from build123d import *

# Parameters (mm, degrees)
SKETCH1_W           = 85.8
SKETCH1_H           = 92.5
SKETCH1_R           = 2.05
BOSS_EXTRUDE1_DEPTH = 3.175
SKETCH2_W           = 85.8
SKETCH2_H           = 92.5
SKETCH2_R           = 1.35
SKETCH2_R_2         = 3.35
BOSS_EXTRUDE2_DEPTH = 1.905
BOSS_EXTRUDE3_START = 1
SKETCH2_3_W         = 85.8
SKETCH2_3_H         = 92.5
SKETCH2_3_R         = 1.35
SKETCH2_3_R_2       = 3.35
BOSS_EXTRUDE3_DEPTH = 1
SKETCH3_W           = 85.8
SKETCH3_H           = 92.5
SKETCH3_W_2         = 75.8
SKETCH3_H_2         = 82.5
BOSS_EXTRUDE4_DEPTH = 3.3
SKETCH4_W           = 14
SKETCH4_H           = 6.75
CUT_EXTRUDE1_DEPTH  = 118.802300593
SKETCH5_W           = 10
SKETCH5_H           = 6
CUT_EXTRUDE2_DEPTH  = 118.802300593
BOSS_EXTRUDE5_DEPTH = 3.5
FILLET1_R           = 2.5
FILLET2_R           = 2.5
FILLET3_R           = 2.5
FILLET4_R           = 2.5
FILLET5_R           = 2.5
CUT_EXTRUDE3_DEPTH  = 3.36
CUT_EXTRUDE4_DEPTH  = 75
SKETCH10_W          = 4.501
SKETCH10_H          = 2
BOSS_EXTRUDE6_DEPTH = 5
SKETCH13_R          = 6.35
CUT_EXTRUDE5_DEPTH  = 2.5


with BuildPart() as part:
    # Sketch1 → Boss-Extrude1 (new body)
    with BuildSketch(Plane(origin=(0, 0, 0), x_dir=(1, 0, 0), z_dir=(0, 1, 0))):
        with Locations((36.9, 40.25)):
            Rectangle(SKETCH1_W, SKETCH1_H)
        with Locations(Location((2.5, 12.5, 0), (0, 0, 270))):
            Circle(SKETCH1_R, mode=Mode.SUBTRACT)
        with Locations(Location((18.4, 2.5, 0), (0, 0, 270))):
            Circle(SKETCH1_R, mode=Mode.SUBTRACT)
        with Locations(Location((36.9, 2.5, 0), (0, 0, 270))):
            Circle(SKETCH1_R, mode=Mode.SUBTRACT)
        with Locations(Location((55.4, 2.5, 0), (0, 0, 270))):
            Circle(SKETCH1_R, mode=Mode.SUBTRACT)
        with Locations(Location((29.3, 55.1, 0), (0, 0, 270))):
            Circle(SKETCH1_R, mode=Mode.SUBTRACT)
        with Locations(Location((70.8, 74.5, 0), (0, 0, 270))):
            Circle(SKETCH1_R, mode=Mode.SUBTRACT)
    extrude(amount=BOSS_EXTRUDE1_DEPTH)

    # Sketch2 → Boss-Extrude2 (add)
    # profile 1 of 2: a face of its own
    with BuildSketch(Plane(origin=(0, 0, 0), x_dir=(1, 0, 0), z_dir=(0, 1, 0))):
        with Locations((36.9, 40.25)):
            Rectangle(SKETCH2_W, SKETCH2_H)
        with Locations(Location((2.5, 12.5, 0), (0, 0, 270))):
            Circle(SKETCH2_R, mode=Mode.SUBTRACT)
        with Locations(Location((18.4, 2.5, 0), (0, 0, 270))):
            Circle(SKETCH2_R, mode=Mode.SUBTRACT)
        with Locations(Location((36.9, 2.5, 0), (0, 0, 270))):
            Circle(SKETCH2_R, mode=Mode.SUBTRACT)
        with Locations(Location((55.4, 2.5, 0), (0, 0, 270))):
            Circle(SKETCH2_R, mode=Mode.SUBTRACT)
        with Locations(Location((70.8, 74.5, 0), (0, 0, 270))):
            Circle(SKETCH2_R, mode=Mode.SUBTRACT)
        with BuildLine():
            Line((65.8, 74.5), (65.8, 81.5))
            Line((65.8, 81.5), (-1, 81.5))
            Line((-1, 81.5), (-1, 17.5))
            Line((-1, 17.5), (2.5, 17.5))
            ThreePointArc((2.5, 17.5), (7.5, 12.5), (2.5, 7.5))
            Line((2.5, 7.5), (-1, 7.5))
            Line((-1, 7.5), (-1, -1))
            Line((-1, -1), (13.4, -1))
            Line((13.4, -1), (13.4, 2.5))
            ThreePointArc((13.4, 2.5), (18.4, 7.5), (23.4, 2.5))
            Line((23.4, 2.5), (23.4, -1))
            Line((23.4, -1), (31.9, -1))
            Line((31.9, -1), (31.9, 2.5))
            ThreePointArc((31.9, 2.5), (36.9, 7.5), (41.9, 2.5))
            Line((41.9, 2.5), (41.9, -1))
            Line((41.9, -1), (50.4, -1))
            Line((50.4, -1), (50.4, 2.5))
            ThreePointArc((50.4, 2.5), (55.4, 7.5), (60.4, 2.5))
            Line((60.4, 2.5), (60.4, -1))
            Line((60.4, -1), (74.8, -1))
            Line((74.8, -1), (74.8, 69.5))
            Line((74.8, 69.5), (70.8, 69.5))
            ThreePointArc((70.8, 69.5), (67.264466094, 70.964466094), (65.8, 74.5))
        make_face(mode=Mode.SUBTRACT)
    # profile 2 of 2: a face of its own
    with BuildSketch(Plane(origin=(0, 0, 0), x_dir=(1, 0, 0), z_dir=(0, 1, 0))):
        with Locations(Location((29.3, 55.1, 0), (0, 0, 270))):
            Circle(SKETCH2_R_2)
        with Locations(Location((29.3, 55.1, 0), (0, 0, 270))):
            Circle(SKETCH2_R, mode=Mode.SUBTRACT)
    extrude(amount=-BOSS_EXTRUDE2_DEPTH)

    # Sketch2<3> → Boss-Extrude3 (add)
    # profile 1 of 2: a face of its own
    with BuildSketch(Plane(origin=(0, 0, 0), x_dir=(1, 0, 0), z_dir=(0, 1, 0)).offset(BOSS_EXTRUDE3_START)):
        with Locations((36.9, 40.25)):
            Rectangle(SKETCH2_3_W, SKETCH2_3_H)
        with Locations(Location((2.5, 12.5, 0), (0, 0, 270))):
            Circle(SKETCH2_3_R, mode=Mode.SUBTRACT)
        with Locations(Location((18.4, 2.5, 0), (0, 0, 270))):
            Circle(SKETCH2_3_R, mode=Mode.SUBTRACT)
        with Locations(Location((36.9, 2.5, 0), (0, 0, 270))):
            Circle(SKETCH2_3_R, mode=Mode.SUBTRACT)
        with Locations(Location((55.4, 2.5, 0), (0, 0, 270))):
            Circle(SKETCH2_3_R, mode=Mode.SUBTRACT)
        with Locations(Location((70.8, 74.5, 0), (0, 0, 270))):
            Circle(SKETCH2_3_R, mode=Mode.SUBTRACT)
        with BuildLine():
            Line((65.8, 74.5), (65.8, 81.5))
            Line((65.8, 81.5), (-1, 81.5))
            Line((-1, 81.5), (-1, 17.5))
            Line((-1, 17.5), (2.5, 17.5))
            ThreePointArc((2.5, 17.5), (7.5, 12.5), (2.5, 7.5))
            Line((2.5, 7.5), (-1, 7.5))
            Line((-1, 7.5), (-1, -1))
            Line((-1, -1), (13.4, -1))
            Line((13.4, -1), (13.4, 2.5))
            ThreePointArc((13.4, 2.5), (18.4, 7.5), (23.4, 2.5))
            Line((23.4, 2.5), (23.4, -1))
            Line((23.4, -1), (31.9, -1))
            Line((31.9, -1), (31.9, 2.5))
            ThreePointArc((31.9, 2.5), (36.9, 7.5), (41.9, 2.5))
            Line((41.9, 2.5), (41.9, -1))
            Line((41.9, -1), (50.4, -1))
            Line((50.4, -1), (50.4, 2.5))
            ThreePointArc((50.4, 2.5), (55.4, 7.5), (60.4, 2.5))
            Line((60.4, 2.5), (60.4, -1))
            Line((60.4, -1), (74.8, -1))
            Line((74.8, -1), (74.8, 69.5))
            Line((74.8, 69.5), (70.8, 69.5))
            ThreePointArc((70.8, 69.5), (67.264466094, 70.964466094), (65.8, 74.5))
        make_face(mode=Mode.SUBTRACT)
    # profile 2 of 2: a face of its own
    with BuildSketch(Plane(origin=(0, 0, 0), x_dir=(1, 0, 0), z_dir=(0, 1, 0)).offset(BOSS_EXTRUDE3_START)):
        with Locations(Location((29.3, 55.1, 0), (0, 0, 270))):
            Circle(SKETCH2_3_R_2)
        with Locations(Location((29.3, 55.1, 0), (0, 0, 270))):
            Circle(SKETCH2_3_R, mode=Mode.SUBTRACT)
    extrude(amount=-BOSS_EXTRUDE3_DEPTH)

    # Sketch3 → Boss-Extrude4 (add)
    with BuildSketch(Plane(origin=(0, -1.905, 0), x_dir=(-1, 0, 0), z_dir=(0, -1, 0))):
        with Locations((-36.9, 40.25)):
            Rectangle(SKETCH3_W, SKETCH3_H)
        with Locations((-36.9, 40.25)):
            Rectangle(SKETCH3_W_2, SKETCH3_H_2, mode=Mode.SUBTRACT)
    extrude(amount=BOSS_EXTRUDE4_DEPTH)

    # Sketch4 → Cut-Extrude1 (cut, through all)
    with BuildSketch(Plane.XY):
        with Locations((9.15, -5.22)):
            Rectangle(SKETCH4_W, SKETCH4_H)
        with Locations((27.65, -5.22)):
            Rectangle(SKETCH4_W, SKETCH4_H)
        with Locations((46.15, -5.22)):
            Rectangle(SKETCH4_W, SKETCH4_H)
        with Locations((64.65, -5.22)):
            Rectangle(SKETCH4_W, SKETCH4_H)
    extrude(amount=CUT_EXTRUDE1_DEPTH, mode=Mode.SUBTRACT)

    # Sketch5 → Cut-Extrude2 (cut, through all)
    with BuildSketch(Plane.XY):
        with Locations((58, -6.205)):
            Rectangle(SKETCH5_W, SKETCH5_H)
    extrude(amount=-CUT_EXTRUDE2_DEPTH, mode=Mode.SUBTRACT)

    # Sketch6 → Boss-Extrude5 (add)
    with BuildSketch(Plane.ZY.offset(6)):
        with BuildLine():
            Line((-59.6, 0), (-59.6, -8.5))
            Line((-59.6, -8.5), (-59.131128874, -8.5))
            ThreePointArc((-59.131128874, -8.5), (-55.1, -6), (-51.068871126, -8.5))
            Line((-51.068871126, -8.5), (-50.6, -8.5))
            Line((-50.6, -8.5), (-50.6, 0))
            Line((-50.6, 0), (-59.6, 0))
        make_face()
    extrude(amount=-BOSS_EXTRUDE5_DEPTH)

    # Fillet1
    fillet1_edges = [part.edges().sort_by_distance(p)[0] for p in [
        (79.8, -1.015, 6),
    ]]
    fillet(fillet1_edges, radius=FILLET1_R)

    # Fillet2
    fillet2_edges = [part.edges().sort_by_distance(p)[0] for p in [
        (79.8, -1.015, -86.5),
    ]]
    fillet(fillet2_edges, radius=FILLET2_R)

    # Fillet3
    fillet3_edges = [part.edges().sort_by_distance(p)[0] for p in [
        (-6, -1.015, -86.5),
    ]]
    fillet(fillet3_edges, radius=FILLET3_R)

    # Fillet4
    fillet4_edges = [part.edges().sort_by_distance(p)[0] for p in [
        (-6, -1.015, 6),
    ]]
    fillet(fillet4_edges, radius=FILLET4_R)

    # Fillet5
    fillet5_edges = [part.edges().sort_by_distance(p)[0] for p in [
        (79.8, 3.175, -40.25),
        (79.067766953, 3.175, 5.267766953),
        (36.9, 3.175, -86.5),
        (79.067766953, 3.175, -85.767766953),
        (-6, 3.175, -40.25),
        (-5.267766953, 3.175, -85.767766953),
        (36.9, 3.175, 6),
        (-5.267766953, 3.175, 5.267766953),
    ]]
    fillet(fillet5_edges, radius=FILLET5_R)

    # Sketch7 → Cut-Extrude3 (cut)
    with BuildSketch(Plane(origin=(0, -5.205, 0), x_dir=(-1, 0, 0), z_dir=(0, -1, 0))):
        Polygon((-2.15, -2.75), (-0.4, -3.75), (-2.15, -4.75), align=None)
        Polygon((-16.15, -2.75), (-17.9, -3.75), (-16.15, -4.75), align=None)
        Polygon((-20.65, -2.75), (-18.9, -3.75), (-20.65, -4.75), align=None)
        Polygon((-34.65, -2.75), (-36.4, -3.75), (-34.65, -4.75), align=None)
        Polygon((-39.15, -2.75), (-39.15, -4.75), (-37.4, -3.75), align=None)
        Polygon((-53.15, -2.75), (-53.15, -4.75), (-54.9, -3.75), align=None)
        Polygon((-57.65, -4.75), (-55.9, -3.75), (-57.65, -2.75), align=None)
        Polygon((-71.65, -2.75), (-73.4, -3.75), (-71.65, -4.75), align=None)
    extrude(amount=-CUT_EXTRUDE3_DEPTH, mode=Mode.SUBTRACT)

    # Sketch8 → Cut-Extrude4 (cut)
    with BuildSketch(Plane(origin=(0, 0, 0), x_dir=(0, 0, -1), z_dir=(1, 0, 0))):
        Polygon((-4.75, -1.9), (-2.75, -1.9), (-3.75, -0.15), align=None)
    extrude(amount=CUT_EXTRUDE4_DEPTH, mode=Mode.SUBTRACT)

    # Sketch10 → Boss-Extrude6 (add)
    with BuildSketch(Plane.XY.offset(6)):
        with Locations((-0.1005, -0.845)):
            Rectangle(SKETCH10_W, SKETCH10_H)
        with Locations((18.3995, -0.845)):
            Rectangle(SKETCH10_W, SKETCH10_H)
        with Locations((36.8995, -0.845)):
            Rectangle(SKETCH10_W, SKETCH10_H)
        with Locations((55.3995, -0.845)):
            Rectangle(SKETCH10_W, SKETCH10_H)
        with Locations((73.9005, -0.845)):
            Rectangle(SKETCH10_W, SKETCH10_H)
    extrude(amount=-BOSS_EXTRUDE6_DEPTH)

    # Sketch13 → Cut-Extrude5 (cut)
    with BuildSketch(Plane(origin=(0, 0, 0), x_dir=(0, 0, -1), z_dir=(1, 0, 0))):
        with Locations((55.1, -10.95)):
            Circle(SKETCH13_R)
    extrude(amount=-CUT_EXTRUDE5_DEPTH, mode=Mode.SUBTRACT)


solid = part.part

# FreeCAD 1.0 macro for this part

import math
import FreeCAD as App
import Part
import Sketcher
from FreeCAD import Vector


def edges_at(feature, points):
    """Names of the edges that pass closest to the given points."""
    edges = feature.Shape.Edges
    near = lambda p: min(range(len(edges)), key=lambda i: edges[i].distToShape(Part.Vertex(*p))[0])
    return sorted({f"Edge{near(p) + 1}" for p in points})

doc = App.newDocument("Part")
body = doc.addObject("PartDesign::Body", "Body")

sketch1 = body.newObject("Sketcher::SketchObject", "Sketch")
sketch1.AttachmentSupport = (doc.getObject("XZ_Plane"), [""])
sketch1.MapMode = "FlatFace"
sketch1.addGeometry([
    Part.LineSegment(Vector(-6, -86.5, 0), Vector(-6, 6, 0)),
    Part.LineSegment(Vector(-6, 6, 0), Vector(79.8, 6, 0)),
    Part.LineSegment(Vector(79.8, 6, 0), Vector(79.8, -86.5, 0)),
    Part.LineSegment(Vector(79.8, -86.5, 0), Vector(-6, -86.5, 0)),
    Part.Circle(Vector(18.4, -2.5, 0), Vector(0, 0, 1), 2),
    Part.Circle(Vector(2.5, -12.5, 0), Vector(0, 0, 1), 2),
    Part.Circle(Vector(36.9, -2.5, 0), Vector(0, 0, 1), 2),
    Part.Circle(Vector(55.4, -2.5, 0), Vector(0, 0, 1), 2),
    Part.Circle(Vector(29.3, -55.1, 0), Vector(0, 0, 1), 2),
    Part.Circle(Vector(70.8, -74.5, 0), Vector(0, 0, 1), 2),
], False)
sketch1.addConstraint([
    Sketcher.Constraint("Coincident", 0, 2, 1, 1),
    Sketcher.Constraint("Coincident", 1, 2, 2, 1),
    Sketcher.Constraint("Coincident", 2, 2, 3, 1),
    Sketcher.Constraint("Coincident", 3, 2, 0, 1),
    Sketcher.Constraint("Vertical", 0),
    Sketcher.Constraint("Horizontal", 1),
    Sketcher.Constraint("Vertical", 2),
    Sketcher.Constraint("Horizontal", 3),
    Sketcher.Constraint("Equal", 4, 5),
    Sketcher.Constraint("Equal", 5, 6),
    Sketcher.Constraint("Equal", 6, 7),
    Sketcher.Constraint("Equal", 7, 8),
    Sketcher.Constraint("Equal", 8, 9),
    Sketcher.Constraint("Horizontal", 4, 3, 6, 3),
    Sketcher.Constraint("Horizontal", 6, 3, 7, 3),
    Sketcher.Constraint("Diameter", 4, 4.1),
    Sketcher.Constraint("DistanceX", 1, 1, 1, 2, 85.8),
    Sketcher.Constraint("DistanceY", 0, 1, 0, 2, 92.5),
    Sketcher.Constraint("DistanceX", 0, 2, -1, 1, 6.0),
    Sketcher.Constraint("DistanceY", -1, 1, 0, 2, 6.0),
    Sketcher.Constraint("DistanceY", 5, 3, 4, 3, 10.0),
    Sketcher.Constraint("DistanceX", 4, 3, 7, 3, 37.0),
    Sketcher.Constraint("DistanceY", 9, 3, 7, 3, 72.0),
    Sketcher.Constraint("DistanceX", 9, 3, 2, 2, 9.0),
    Sketcher.Constraint("DistanceY", 2, 2, 9, 3, 12.0),
    Sketcher.Constraint("DistanceX", -1, 1, 4, 3, 18.4),
    Sketcher.Constraint("DistanceX", -1, 1, 5, 3, 2.5),
    Sketcher.Constraint("DistanceX", -1, 1, 6, 3, 36.9),
    Sketcher.Constraint("DistanceX", -1, 1, 8, 3, 29.3),
    Sketcher.Constraint("DistanceY", 8, 3, -1, 1, 55.1),
])
pad1 = body.newObject("PartDesign::Pad", "Pad")
pad1.Profile = sketch1
pad1.Length = 3.175
pad1.Reversed = True

sketch2 = body.newObject("Sketcher::SketchObject", "Sketch001")
sketch2.AttachmentSupport = (doc.getObject("XZ_Plane"), [""])
sketch2.MapMode = "FlatFace"
sketch2.addGeometry([
    Part.LineSegment(Vector(-6, -86.5, 0), Vector(-6, 6, 0)),
    Part.LineSegment(Vector(-6, 6, 0), Vector(79.8, 6, 0)),
    Part.LineSegment(Vector(79.8, 6, 0), Vector(79.8, -86.5, 0)),
    Part.LineSegment(Vector(79.8, -86.5, 0), Vector(-6, -86.5, 0)),
    Part.Circle(Vector(2.5, -12.5, 0), Vector(0, 0, 1), 1.4),
    Part.Circle(Vector(18.4, -2.5, 0), Vector(0, 0, 1), 1.4),
    Part.Circle(Vector(36.9, -2.5, 0), Vector(0, 0, 1), 1.4),
    Part.Circle(Vector(55.4, -2.5, 0), Vector(0, 0, 1), 1.4),
    Part.LineSegment(Vector(65.8, -81.5, 0), Vector(65.8, -74.5, 0)),
    Part.ArcOfCircle(Part.Circle(Vector(70.8, -74.5, 0), Vector(0, 0, 1), 5), math.radians(90), math.radians(180)),
    Part.LineSegment(Vector(70.8, -69.5, 0), Vector(74.8, -69.5, 0)),
    Part.LineSegment(Vector(74.8, -69.5, 0), Vector(74.8, 1, 0)),
    Part.LineSegment(Vector(74.8, 1, 0), Vector(60.4, 1, 0)),
    Part.LineSegment(Vector(60.4, 1, 0), Vector(60.4, -2.5, 0)),
    Part.ArcOfCircle(Part.Circle(Vector(55.4, -2.5, 0), Vector(0, 0, 1), 5), math.radians(180), math.radians(360)),
    Part.LineSegment(Vector(50.4, -2.5, 0), Vector(50.4, 1, 0)),
    Part.LineSegment(Vector(50.4, 1, 0), Vector(41.9, 1, 0)),
    Part.LineSegment(Vector(41.9, 1, 0), Vector(41.9, -2.5, 0)),
    Part.ArcOfCircle(Part.Circle(Vector(36.9, -2.5, 0), Vector(0, 0, 1), 5), math.radians(180), math.radians(360)),
    Part.LineSegment(Vector(31.9, -2.5, 0), Vector(31.9, 1, 0)),
    Part.LineSegment(Vector(31.9, 1, 0), Vector(23.4, 1, 0)),
    Part.LineSegment(Vector(23.4, 1, 0), Vector(23.4, -2.5, 0)),
    Part.ArcOfCircle(Part.Circle(Vector(18.4, -2.5, 0), Vector(0, 0, 1), 5), math.radians(180), math.radians(360)),
    Part.LineSegment(Vector(13.4, -2.5, 0), Vector(13.4, 1, 0)),
    Part.LineSegment(Vector(13.4, 1, 0), Vector(-1, 1, 0)),
    Part.LineSegment(Vector(-1, 1, 0), Vector(-1, -7.5, 0)),
    Part.LineSegment(Vector(-1, -7.5, 0), Vector(2.5, -7.5, 0)),
    Part.ArcOfCircle(Part.Circle(Vector(2.5, -12.5, 0), Vector(0, 0, 1), 5), math.radians(-90), math.radians(90)),
    Part.LineSegment(Vector(2.5, -17.5, 0), Vector(-1, -17.5, 0)),
    Part.LineSegment(Vector(-1, -17.5, 0), Vector(-1, -81.5, 0)),
    Part.LineSegment(Vector(-1, -81.5, 0), Vector(65.8, -81.5, 0)),
    Part.Circle(Vector(70.8, -74.5, 0), Vector(0, 0, 1), 1.4),
    Part.Circle(Vector(29.3, -55.1, 0), Vector(0, 0, 1), 3.4),
    Part.Circle(Vector(29.3, -55.1, 0), Vector(0, 0, 1), 1.4),
], False)
sketch2.addConstraint([
    Sketcher.Constraint("Coincident", 0, 2, 1, 1),
    Sketcher.Constraint("Coincident", 1, 2, 2, 1),
    Sketcher.Constraint("Coincident", 2, 2, 3, 1),
    Sketcher.Constraint("Coincident", 3, 2, 0, 1),
    Sketcher.Constraint("Tangent", 8, 2, 9, 2),
    Sketcher.Constraint("Tangent", 9, 1, 10, 1),
    Sketcher.Constraint("Coincident", 10, 2, 11, 1),
    Sketcher.Constraint("Coincident", 11, 2, 12, 1),
    Sketcher.Constraint("Coincident", 12, 2, 13, 1),
    Sketcher.Constraint("Tangent", 13, 2, 14, 2),
    Sketcher.Constraint("Tangent", 14, 1, 15, 1),
    Sketcher.Constraint("Coincident", 15, 2, 16, 1),
    Sketcher.Constraint("Coincident", 16, 2, 17, 1),
    Sketcher.Constraint("Tangent", 17, 2, 18, 2),
    Sketcher.Constraint("Tangent", 18, 1, 19, 1),
    Sketcher.Constraint("Coincident", 19, 2, 20, 1),
    Sketcher.Constraint("Coincident", 20, 2, 21, 1),
    Sketcher.Constraint("Tangent", 21, 2, 22, 2),
    Sketcher.Constraint("Tangent", 22, 1, 23, 1),
    Sketcher.Constraint("Coincident", 23, 2, 24, 1),
    Sketcher.Constraint("Coincident", 24, 2, 25, 1),
    Sketcher.Constraint("Coincident", 25, 2, 26, 1),
    Sketcher.Constraint("Tangent", 26, 2, 27, 2),
    Sketcher.Constraint("Tangent", 27, 1, 28, 1),
    Sketcher.Constraint("Coincident", 28, 2, 29, 1),
    Sketcher.Constraint("Coincident", 29, 2, 30, 1),
    Sketcher.Constraint("Coincident", 30, 2, 8, 1),
    Sketcher.Constraint("Vertical", 0),
    Sketcher.Constraint("Horizontal", 1),
    Sketcher.Constraint("Vertical", 2),
    Sketcher.Constraint("Horizontal", 3),
    Sketcher.Constraint("Vertical", 8),
    Sketcher.Constraint("Horizontal", 10),
    Sketcher.Constraint("Vertical", 11),
    Sketcher.Constraint("Horizontal", 12),
    Sketcher.Constraint("Vertical", 13),
    Sketcher.Constraint("Vertical", 15),
    Sketcher.Constraint("Horizontal", 16),
    Sketcher.Constraint("Vertical", 17),
    Sketcher.Constraint("Vertical", 19),
    Sketcher.Constraint("Horizontal", 20),
    Sketcher.Constraint("Vertical", 21),
    Sketcher.Constraint("Vertical", 23),
    Sketcher.Constraint("Horizontal", 24),
    Sketcher.Constraint("Vertical", 25),
    Sketcher.Constraint("Horizontal", 26),
    Sketcher.Constraint("Horizontal", 28),
    Sketcher.Constraint("Vertical", 29),
    Sketcher.Constraint("Horizontal", 30),
    Sketcher.Constraint("Coincident", 14, 3, 7, 3),
    Sketcher.Constraint("Coincident", 18, 3, 6, 3),
    Sketcher.Constraint("Coincident", 22, 3, 5, 3),
    Sketcher.Constraint("Coincident", 27, 3, 4, 3),
    Sketcher.Constraint("Coincident", 31, 3, 9, 3),
    Sketcher.Constraint("Coincident", 33, 3, 32, 3),
    Sketcher.Constraint("Equal", 4, 5),
    Sketcher.Constraint("Equal", 5, 6),
    Sketcher.Constraint("Equal", 6, 7),
    Sketcher.Constraint("Equal", 9, 14),
    Sketcher.Constraint("Equal", 14, 18),
    Sketcher.Constraint("Equal", 18, 22),
    Sketcher.Constraint("Equal", 22, 27),
    Sketcher.Constraint("Equal", 7, 31),
    Sketcher.Constraint("Equal", 31, 33),
    Sketcher.Constraint("Horizontal", 5, 3, 6, 3),
    Sketcher.Constraint("Horizontal", 6, 3, 7, 3),
    Sketcher.Constraint("Horizontal", 12, 2, 15, 2),
    Sketcher.Constraint("Horizontal", 16, 2, 19, 2),
    Sketcher.Constraint("Horizontal", 20, 2, 23, 2),
    Sketcher.Constraint("Vertical", 25, 2, 28, 2),
    Sketcher.Constraint("Equal", 16, 20),
    Sketcher.Constraint("Equal", 12, 24),
    Sketcher.Constraint("Equal", 28, 13),
    Sketcher.Constraint("Equal", 20, 25),
    Sketcher.Constraint("Radius", 9, 5.0),
    Sketcher.Constraint("Diameter", 4, 2.7),
    Sketcher.Constraint("Diameter", 32, 6.7),
    Sketcher.Constraint("DistanceX", 10, 1, 10, 2, 4.0),
    Sketcher.Constraint("DistanceY", 8, 1, 8, 2, 7.0),
    Sketcher.Constraint("DistanceY", 29, 2, 29, 1, 64.0),
    Sketcher.Constraint("DistanceX", 1, 1, 1, 2, 85.8),
    Sketcher.Constraint("DistanceX", 12, 2, 12, 1, 14.4),
    Sketcher.Constraint("DistanceX", 16, 2, 16, 1, 8.5),
    Sketcher.Constraint("DistanceX", 26, 1, 26, 2, 3.5),
    Sketcher.Constraint("DistanceY", 0, 1, 0, 2, 92.5),
    Sketcher.Constraint("DistanceX", 0, 2, -1, 1, 6.0),
    Sketcher.Constraint("DistanceY", -1, 1, 0, 2, 6.0),
    Sketcher.Constraint("DistanceY", -1, 1, 11, 2, 1.0),
    Sketcher.Constraint("DistanceX", 24, 2, -1, 1, 1.0),
    Sketcher.Constraint("DistanceX", -1, 1, 32, 3, 29.3),
    Sketcher.Constraint("DistanceY", 32, 3, -1, 1, 55.1),
])
pad2 = body.newObject("PartDesign::Pad", "Pad001")
pad2.Profile = sketch2
pad2.Length = 1.905

sketch3 = body.newObject("Sketcher::SketchObject", "Sketch002")
sketch3.AttachmentSupport = (doc.getObject("XZ_Plane"), [""])
sketch3.MapMode = "FlatFace"
sketch3.AttachmentOffset = App.Placement(Vector(0, 0, -1), App.Rotation())
sketch3.addGeometry([
    Part.LineSegment(Vector(-6, -86.5, 0), Vector(-6, 6, 0)),
    Part.LineSegment(Vector(-6, 6, 0), Vector(79.8, 6, 0)),
    Part.LineSegment(Vector(79.8, 6, 0), Vector(79.8, -86.5, 0)),
    Part.LineSegment(Vector(79.8, -86.5, 0), Vector(-6, -86.5, 0)),
    Part.Circle(Vector(2.5, -12.5, 0), Vector(0, 0, 1), 1.4),
    Part.Circle(Vector(18.4, -2.5, 0), Vector(0, 0, 1), 1.4),
    Part.Circle(Vector(36.9, -2.5, 0), Vector(0, 0, 1), 1.4),
    Part.Circle(Vector(55.4, -2.5, 0), Vector(0, 0, 1), 1.4),
    Part.LineSegment(Vector(65.8, -81.5, 0), Vector(65.8, -74.5, 0)),
    Part.ArcOfCircle(Part.Circle(Vector(70.8, -74.5, 0), Vector(0, 0, 1), 5), math.radians(90), math.radians(180)),
    Part.LineSegment(Vector(70.8, -69.5, 0), Vector(74.8, -69.5, 0)),
    Part.LineSegment(Vector(74.8, -69.5, 0), Vector(74.8, 1, 0)),
    Part.LineSegment(Vector(74.8, 1, 0), Vector(60.4, 1, 0)),
    Part.LineSegment(Vector(60.4, 1, 0), Vector(60.4, -2.5, 0)),
    Part.ArcOfCircle(Part.Circle(Vector(55.4, -2.5, 0), Vector(0, 0, 1), 5), math.radians(180), math.radians(360)),
    Part.LineSegment(Vector(50.4, -2.5, 0), Vector(50.4, 1, 0)),
    Part.LineSegment(Vector(50.4, 1, 0), Vector(41.9, 1, 0)),
    Part.LineSegment(Vector(41.9, 1, 0), Vector(41.9, -2.5, 0)),
    Part.ArcOfCircle(Part.Circle(Vector(36.9, -2.5, 0), Vector(0, 0, 1), 5), math.radians(180), math.radians(360)),
    Part.LineSegment(Vector(31.9, -2.5, 0), Vector(31.9, 1, 0)),
    Part.LineSegment(Vector(31.9, 1, 0), Vector(23.4, 1, 0)),
    Part.LineSegment(Vector(23.4, 1, 0), Vector(23.4, -2.5, 0)),
    Part.ArcOfCircle(Part.Circle(Vector(18.4, -2.5, 0), Vector(0, 0, 1), 5), math.radians(180), math.radians(360)),
    Part.LineSegment(Vector(13.4, -2.5, 0), Vector(13.4, 1, 0)),
    Part.LineSegment(Vector(13.4, 1, 0), Vector(-1, 1, 0)),
    Part.LineSegment(Vector(-1, 1, 0), Vector(-1, -7.5, 0)),
    Part.LineSegment(Vector(-1, -7.5, 0), Vector(2.5, -7.5, 0)),
    Part.ArcOfCircle(Part.Circle(Vector(2.5, -12.5, 0), Vector(0, 0, 1), 5), math.radians(-90), math.radians(90)),
    Part.LineSegment(Vector(2.5, -17.5, 0), Vector(-1, -17.5, 0)),
    Part.LineSegment(Vector(-1, -17.5, 0), Vector(-1, -81.5, 0)),
    Part.LineSegment(Vector(-1, -81.5, 0), Vector(65.8, -81.5, 0)),
    Part.Circle(Vector(70.8, -74.5, 0), Vector(0, 0, 1), 1.4),
    Part.Circle(Vector(29.3, -55.1, 0), Vector(0, 0, 1), 3.4),
    Part.Circle(Vector(29.3, -55.1, 0), Vector(0, 0, 1), 1.4),
], False)
sketch3.addConstraint([
    Sketcher.Constraint("Coincident", 0, 2, 1, 1),
    Sketcher.Constraint("Coincident", 1, 2, 2, 1),
    Sketcher.Constraint("Coincident", 2, 2, 3, 1),
    Sketcher.Constraint("Coincident", 3, 2, 0, 1),
    Sketcher.Constraint("Tangent", 8, 2, 9, 2),
    Sketcher.Constraint("Tangent", 9, 1, 10, 1),
    Sketcher.Constraint("Coincident", 10, 2, 11, 1),
    Sketcher.Constraint("Coincident", 11, 2, 12, 1),
    Sketcher.Constraint("Coincident", 12, 2, 13, 1),
    Sketcher.Constraint("Tangent", 13, 2, 14, 2),
    Sketcher.Constraint("Tangent", 14, 1, 15, 1),
    Sketcher.Constraint("Coincident", 15, 2, 16, 1),
    Sketcher.Constraint("Coincident", 16, 2, 17, 1),
    Sketcher.Constraint("Tangent", 17, 2, 18, 2),
    Sketcher.Constraint("Tangent", 18, 1, 19, 1),
    Sketcher.Constraint("Coincident", 19, 2, 20, 1),
    Sketcher.Constraint("Coincident", 20, 2, 21, 1),
    Sketcher.Constraint("Tangent", 21, 2, 22, 2),
    Sketcher.Constraint("Tangent", 22, 1, 23, 1),
    Sketcher.Constraint("Coincident", 23, 2, 24, 1),
    Sketcher.Constraint("Coincident", 24, 2, 25, 1),
    Sketcher.Constraint("Coincident", 25, 2, 26, 1),
    Sketcher.Constraint("Tangent", 26, 2, 27, 2),
    Sketcher.Constraint("Tangent", 27, 1, 28, 1),
    Sketcher.Constraint("Coincident", 28, 2, 29, 1),
    Sketcher.Constraint("Coincident", 29, 2, 30, 1),
    Sketcher.Constraint("Coincident", 30, 2, 8, 1),
    Sketcher.Constraint("Vertical", 0),
    Sketcher.Constraint("Horizontal", 1),
    Sketcher.Constraint("Vertical", 2),
    Sketcher.Constraint("Horizontal", 3),
    Sketcher.Constraint("Vertical", 8),
    Sketcher.Constraint("Horizontal", 10),
    Sketcher.Constraint("Vertical", 11),
    Sketcher.Constraint("Horizontal", 12),
    Sketcher.Constraint("Vertical", 13),
    Sketcher.Constraint("Vertical", 15),
    Sketcher.Constraint("Horizontal", 16),
    Sketcher.Constraint("Vertical", 17),
    Sketcher.Constraint("Vertical", 19),
    Sketcher.Constraint("Horizontal", 20),
    Sketcher.Constraint("Vertical", 21),
    Sketcher.Constraint("Vertical", 23),
    Sketcher.Constraint("Horizontal", 24),
    Sketcher.Constraint("Vertical", 25),
    Sketcher.Constraint("Horizontal", 26),
    Sketcher.Constraint("Horizontal", 28),
    Sketcher.Constraint("Vertical", 29),
    Sketcher.Constraint("Horizontal", 30),
    Sketcher.Constraint("Coincident", 14, 3, 7, 3),
    Sketcher.Constraint("Coincident", 18, 3, 6, 3),
    Sketcher.Constraint("Coincident", 22, 3, 5, 3),
    Sketcher.Constraint("Coincident", 27, 3, 4, 3),
    Sketcher.Constraint("Coincident", 31, 3, 9, 3),
    Sketcher.Constraint("Coincident", 33, 3, 32, 3),
    Sketcher.Constraint("Equal", 4, 5),
    Sketcher.Constraint("Equal", 5, 6),
    Sketcher.Constraint("Equal", 6, 7),
    Sketcher.Constraint("Equal", 9, 14),
    Sketcher.Constraint("Equal", 14, 18),
    Sketcher.Constraint("Equal", 18, 22),
    Sketcher.Constraint("Equal", 22, 27),
    Sketcher.Constraint("Equal", 7, 31),
    Sketcher.Constraint("Equal", 31, 33),
    Sketcher.Constraint("Horizontal", 5, 3, 6, 3),
    Sketcher.Constraint("Horizontal", 6, 3, 7, 3),
    Sketcher.Constraint("Horizontal", 12, 2, 15, 2),
    Sketcher.Constraint("Horizontal", 16, 2, 19, 2),
    Sketcher.Constraint("Horizontal", 20, 2, 23, 2),
    Sketcher.Constraint("Vertical", 25, 2, 28, 2),
    Sketcher.Constraint("Equal", 16, 20),
    Sketcher.Constraint("Equal", 12, 24),
    Sketcher.Constraint("Equal", 28, 13),
    Sketcher.Constraint("Equal", 20, 25),
    Sketcher.Constraint("Radius", 9, 5.0),
    Sketcher.Constraint("Diameter", 4, 2.7),
    Sketcher.Constraint("Diameter", 32, 6.7),
    Sketcher.Constraint("DistanceX", 10, 1, 10, 2, 4.0),
    Sketcher.Constraint("DistanceY", 8, 1, 8, 2, 7.0),
    Sketcher.Constraint("DistanceY", 29, 2, 29, 1, 64.0),
    Sketcher.Constraint("DistanceX", 1, 1, 1, 2, 85.8),
    Sketcher.Constraint("DistanceX", 12, 2, 12, 1, 14.4),
    Sketcher.Constraint("DistanceX", 16, 2, 16, 1, 8.5),
    Sketcher.Constraint("DistanceX", 26, 1, 26, 2, 3.5),
    Sketcher.Constraint("DistanceY", 0, 1, 0, 2, 92.5),
    Sketcher.Constraint("DistanceX", 0, 2, -1, 1, 6.0),
    Sketcher.Constraint("DistanceY", -1, 1, 0, 2, 6.0),
    Sketcher.Constraint("DistanceY", -1, 1, 11, 2, 1.0),
    Sketcher.Constraint("DistanceX", 24, 2, -1, 1, 1.0),
    Sketcher.Constraint("DistanceX", -1, 1, 32, 3, 29.3),
    Sketcher.Constraint("DistanceY", 32, 3, -1, 1, 55.1),
])
pad3 = body.newObject("PartDesign::Pad", "Pad002")
pad3.Profile = sketch3
pad3.Length = 1

sketch4 = body.newObject("Sketcher::SketchObject", "Sketch003")
sketch4.AttachmentSupport = (doc.getObject("XZ_Plane"), [""])
sketch4.MapMode = "FlatFace"
sketch4.AttachmentOffset = App.Placement(Vector(0, 0, 1.905), App.Rotation())
sketch4.addGeometry([
    Part.LineSegment(Vector(80, -86, 0), Vector(80, 6, 0)),
    Part.LineSegment(Vector(80, 6, 0), Vector(-6, 6, 0)),
    Part.LineSegment(Vector(-6, 6, 0), Vector(-6, -86, 0)),
    Part.LineSegment(Vector(-6, -86, 0), Vector(80, -86, 0)),
    Part.LineSegment(Vector(-1, 1, 0), Vector(75, 1, 0)),
    Part.LineSegment(Vector(75, 1, 0), Vector(75, -82, 0)),
    Part.LineSegment(Vector(75, -82, 0), Vector(-1, -82, 0)),
    Part.LineSegment(Vector(-1, -82, 0), Vector(-1, 1, 0)),
], False)
sketch4.addConstraint([
    Sketcher.Constraint("Coincident", 0, 2, 1, 1),
    Sketcher.Constraint("Coincident", 1, 2, 2, 1),
    Sketcher.Constraint("Coincident", 2, 2, 3, 1),
    Sketcher.Constraint("Coincident", 3, 2, 0, 1),
    Sketcher.Constraint("Coincident", 4, 2, 5, 1),
    Sketcher.Constraint("Coincident", 5, 2, 6, 1),
    Sketcher.Constraint("Coincident", 6, 2, 7, 1),
    Sketcher.Constraint("Coincident", 7, 2, 4, 1),
    Sketcher.Constraint("Vertical", 0),
    Sketcher.Constraint("Horizontal", 1),
    Sketcher.Constraint("Vertical", 2),
    Sketcher.Constraint("Horizontal", 3),
    Sketcher.Constraint("Horizontal", 4),
    Sketcher.Constraint("Vertical", 5),
    Sketcher.Constraint("Horizontal", 6),
    Sketcher.Constraint("Vertical", 7),
    Sketcher.Constraint("DistanceX", 1, 2, 1, 1, 85.8),
    Sketcher.Constraint("DistanceX", 4, 1, 4, 2, 75.8),
    Sketcher.Constraint("DistanceY", 0, 1, 0, 2, 92.5),
    Sketcher.Constraint("DistanceY", 5, 2, 5, 1, 82.5),
    Sketcher.Constraint("DistanceY", -1, 1, 0, 2, 6.0),
    Sketcher.Constraint("DistanceX", 1, 2, -1, 1, 6.0),
    Sketcher.Constraint("DistanceY", -1, 1, 4, 2, 1.0),
    Sketcher.Constraint("DistanceX", 6, 2, -1, 1, 1.0),
])
pad4 = body.newObject("PartDesign::Pad", "Pad003")
pad4.Profile = sketch4
pad4.Length = 3.3

sketch5 = body.newObject("Sketcher::SketchObject", "Sketch004")
sketch5.AttachmentSupport = (doc.getObject("XY_Plane"), [""])
sketch5.MapMode = "FlatFace"
sketch5.addGeometry([
    Part.LineSegment(Vector(2, -2, 0), Vector(2, -9, 0)),
    Part.LineSegment(Vector(2, -9, 0), Vector(16, -9, 0)),
    Part.LineSegment(Vector(16, -9, 0), Vector(16, -2, 0)),
    Part.LineSegment(Vector(16, -2, 0), Vector(2, -2, 0)),
    Part.LineSegment(Vector(21, -2, 0), Vector(21, -9, 0)),
    Part.LineSegment(Vector(21, -9, 0), Vector(35, -9, 0)),
    Part.LineSegment(Vector(35, -9, 0), Vector(35, -2, 0)),
    Part.LineSegment(Vector(35, -2, 0), Vector(21, -2, 0)),
    Part.LineSegment(Vector(39, -2, 0), Vector(39, -9, 0)),
    Part.LineSegment(Vector(39, -9, 0), Vector(53, -9, 0)),
    Part.LineSegment(Vector(53, -9, 0), Vector(53, -2, 0)),
    Part.LineSegment(Vector(53, -2, 0), Vector(39, -2, 0)),
    Part.LineSegment(Vector(58, -2, 0), Vector(58, -9, 0)),
    Part.LineSegment(Vector(58, -9, 0), Vector(72, -9, 0)),
    Part.LineSegment(Vector(72, -9, 0), Vector(72, -2, 0)),
    Part.LineSegment(Vector(72, -2, 0), Vector(58, -2, 0)),
], False)
sketch5.addConstraint([
    Sketcher.Constraint("Coincident", 0, 2, 1, 1),
    Sketcher.Constraint("Coincident", 1, 2, 2, 1),
    Sketcher.Constraint("Coincident", 2, 2, 3, 1),
    Sketcher.Constraint("Coincident", 3, 2, 0, 1),
    Sketcher.Constraint("Coincident", 4, 2, 5, 1),
    Sketcher.Constraint("Coincident", 5, 2, 6, 1),
    Sketcher.Constraint("Coincident", 6, 2, 7, 1),
    Sketcher.Constraint("Coincident", 7, 2, 4, 1),
    Sketcher.Constraint("Coincident", 8, 2, 9, 1),
    Sketcher.Constraint("Coincident", 9, 2, 10, 1),
    Sketcher.Constraint("Coincident", 10, 2, 11, 1),
    Sketcher.Constraint("Coincident", 11, 2, 8, 1),
    Sketcher.Constraint("Coincident", 12, 2, 13, 1),
    Sketcher.Constraint("Coincident", 13, 2, 14, 1),
    Sketcher.Constraint("Coincident", 14, 2, 15, 1),
    Sketcher.Constraint("Coincident", 15, 2, 12, 1),
    Sketcher.Constraint("Vertical", 0),
    Sketcher.Constraint("Horizontal", 1),
    Sketcher.Constraint("Vertical", 2),
    Sketcher.Constraint("Horizontal", 3),
    Sketcher.Constraint("Vertical", 4),
    Sketcher.Constraint("Horizontal", 5),
    Sketcher.Constraint("Vertical", 6),
    Sketcher.Constraint("Horizontal", 7),
    Sketcher.Constraint("Vertical", 8),
    Sketcher.Constraint("Horizontal", 9),
    Sketcher.Constraint("Vertical", 10),
    Sketcher.Constraint("Horizontal", 11),
    Sketcher.Constraint("Vertical", 12),
    Sketcher.Constraint("Horizontal", 13),
    Sketcher.Constraint("Vertical", 14),
    Sketcher.Constraint("Horizontal", 15),
    Sketcher.Constraint("Horizontal", 1, 2, 4, 2),
    Sketcher.Constraint("Horizontal", 3, 2, 6, 2),
    Sketcher.Constraint("Horizontal", 5, 2, 8, 2),
    Sketcher.Constraint("Horizontal", 7, 2, 10, 2),
    Sketcher.Constraint("Horizontal", 9, 2, 12, 2),
    Sketcher.Constraint("Horizontal", 11, 2, 14, 2),
    Sketcher.Constraint("Equal", 3, 5),
    Sketcher.Constraint("Equal", 7, 9),
    Sketcher.Constraint("Equal", 11, 13),
    Sketcher.Constraint("DistanceX", 1, 1, 1, 2, 14.0),
    Sketcher.Constraint("DistanceX", 1, 2, 8, 2, 23.0),
    Sketcher.Constraint("DistanceX", 5, 2, 12, 2, 23.0),
    Sketcher.Constraint("DistanceY", 0, 2, 0, 1, 6.75),
    Sketcher.Constraint("DistanceX", 1, 2, 4, 2, 4.5),
    Sketcher.Constraint("DistanceX", -1, 1, 0, 2, 2.15),
    Sketcher.Constraint("DistanceY", 0, 2, -1, 1, 8.595),
])
pocket1 = body.newObject("PartDesign::Pocket", "Pocket")
pocket1.Profile = sketch5
pocket1.Type = "ThroughAll"
pocket1.Reversed = True

sketch6 = body.newObject("Sketcher::SketchObject", "Sketch005")
sketch6.AttachmentSupport = (doc.getObject("XY_Plane"), [""])
sketch6.MapMode = "FlatFace"
sketch6.addGeometry([
    Part.LineSegment(Vector(53, -3, 0), Vector(53, -9, 0)),
    Part.LineSegment(Vector(53, -9, 0), Vector(63, -9, 0)),
    Part.LineSegment(Vector(63, -9, 0), Vector(63, -3, 0)),
    Part.LineSegment(Vector(63, -3, 0), Vector(53, -3, 0)),
], False)
sketch6.addConstraint([
    Sketcher.Constraint("Coincident", 0, 2, 1, 1),
    Sketcher.Constraint("Coincident", 1, 2, 2, 1),
    Sketcher.Constraint("Coincident", 2, 2, 3, 1),
    Sketcher.Constraint("Coincident", 3, 2, 0, 1),
    Sketcher.Constraint("Vertical", 0),
    Sketcher.Constraint("Horizontal", 1),
    Sketcher.Constraint("Vertical", 2),
    Sketcher.Constraint("Horizontal", 3),
    Sketcher.Constraint("DistanceX", 1, 1, 1, 2, 10.0),
    Sketcher.Constraint("DistanceY", 0, 2, 0, 1, 6.0),
    Sketcher.Constraint("DistanceX", -1, 1, 0, 2, 53.0),
    Sketcher.Constraint("DistanceY", 0, 2, -1, 1, 9.205),
])
pocket2 = body.newObject("PartDesign::Pocket", "Pocket001")
pocket2.Profile = sketch6
pocket2.Type = "ThroughAll"

sketch7 = body.newObject("Sketcher::SketchObject", "Sketch006")
sketch7.AttachmentSupport = (doc.getObject("YZ_Plane"), [""])
sketch7.MapMode = "FlatFace"
sketch7.AttachmentOffset = App.Placement(Vector(0, 0, -6), App.Rotation())
sketch7.addGeometry([
    Part.LineSegment(Vector(0, -59.6, 0), Vector(-8.5, -59.6, 0)),
    Part.LineSegment(Vector(-8.5, -59.6, 0), Vector(-8.5, -59.13, 0)),
    Part.ArcOfCircle(Part.Circle(Vector(-10.5, -55.1, 0), Vector(0, 0, 1), 4.5), math.radians(-64), math.radians(64)),
    Part.LineSegment(Vector(-8.5, -51.07, 0), Vector(-8.5, -50.6, 0)),
    Part.LineSegment(Vector(-8.5, -50.6, 0), Vector(0, -50.6, 0)),
    Part.LineSegment(Vector(0, -50.6, 0), Vector(0, -59.6, 0)),
], False)
sketch7.addConstraint([
    Sketcher.Constraint("Coincident", 0, 2, 1, 1),
    Sketcher.Constraint("Coincident", 1, 2, 2, 1),
    Sketcher.Constraint("Coincident", 2, 2, 3, 1),
    Sketcher.Constraint("Coincident", 3, 2, 4, 1),
    Sketcher.Constraint("Coincident", 4, 2, 5, 1),
    Sketcher.Constraint("Coincident", 5, 2, 0, 1),
    Sketcher.Constraint("Horizontal", 0),
    Sketcher.Constraint("Vertical", 1),
    Sketcher.Constraint("Vertical", 3),
    Sketcher.Constraint("Horizontal", 4),
    Sketcher.Constraint("Vertical", 5),
    Sketcher.Constraint("PointOnObject", 4, 2, -2),
    Sketcher.Constraint("Vertical", 1, 2, 2, 2),
    Sketcher.Constraint("Equal", 1, 3),
    Sketcher.Constraint("Radius", 2, 4.5),
    Sketcher.Constraint("DistanceY", 5, 2, 5, 1, 9.0),
    Sketcher.Constraint("DistanceX", 0, 2, 0, 1, 8.5),
    Sketcher.Constraint("DistanceX", 2, 3, 0, 2, 2.0),
    Sketcher.Constraint("DistanceY", 2, 3, -1, 1, 55.1),
])
pad5 = body.newObject("PartDesign::Pad", "Pad004")
pad5.Profile = sketch7
pad5.Length = 3.5
doc.recompute()

fillet = body.newObject("PartDesign::Fillet", "Fillet")
fillet.Base = (pad5, edges_at(pad5, [(79.8, -1.015, 6)]))
fillet.Radius = 2.5
doc.recompute()

fillet2 = body.newObject("PartDesign::Fillet", "Fillet001")
fillet2.Base = (fillet, edges_at(fillet, [(79.8, -1.015, -86.5)]))
fillet2.Radius = 2.5
doc.recompute()

fillet3 = body.newObject("PartDesign::Fillet", "Fillet002")
fillet3.Base = (fillet2, edges_at(fillet2, [(-6, -1.015, -86.5)]))
fillet3.Radius = 2.5
doc.recompute()

fillet4 = body.newObject("PartDesign::Fillet", "Fillet003")
fillet4.Base = (fillet3, edges_at(fillet3, [(-6, -1.015, 6)]))
fillet4.Radius = 2.5
doc.recompute()

fillet5 = body.newObject("PartDesign::Fillet", "Fillet004")
fillet5.Base = (fillet4, edges_at(fillet4, [
    (79.8, 3.175, -40.25),
    (79.068, 3.175, 5.268),
    (36.9, 3.175, -86.5),
    (79.068, 3.175, -85.768),
    (-6, 3.175, -40.25),
    (-5.268, 3.175, -85.768),
    (36.9, 3.175, 6),
    (-5.268, 3.175, 5.268),
]))
fillet5.Radius = 2.5

sketch8 = body.newObject("Sketcher::SketchObject", "Sketch007")
sketch8.AttachmentSupport = (doc.getObject("XZ_Plane"), [""])
sketch8.MapMode = "FlatFace"
sketch8.AttachmentOffset = App.Placement(Vector(0, 0, 5.205), App.Rotation())
sketch8.addGeometry([
    Part.LineSegment(Vector(0.4, 3.8, 0), Vector(2.1, 2.8, 0)),
    Part.LineSegment(Vector(2.1, 2.8, 0), Vector(2.1, 4.8, 0)),
    Part.LineSegment(Vector(2.1, 4.8, 0), Vector(0.4, 3.8, 0)),
    Part.LineSegment(Vector(16.1, 2.8, 0), Vector(17.9, 3.8, 0)),
    Part.LineSegment(Vector(17.9, 3.8, 0), Vector(16.1, 4.8, 0)),
    Part.LineSegment(Vector(16.1, 4.8, 0), Vector(16.1, 2.8, 0)),
    Part.LineSegment(Vector(18.9, 3.8, 0), Vector(20.6, 2.8, 0)),
    Part.LineSegment(Vector(20.6, 2.8, 0), Vector(20.6, 4.8, 0)),
    Part.LineSegment(Vector(20.6, 4.8, 0), Vector(18.9, 3.8, 0)),
    Part.LineSegment(Vector(34.6, 2.8, 0), Vector(36.4, 3.8, 0)),
    Part.LineSegment(Vector(36.4, 3.8, 0), Vector(34.6, 4.8, 0)),
    Part.LineSegment(Vector(34.6, 4.8, 0), Vector(34.6, 2.8, 0)),
    Part.LineSegment(Vector(39.1, 2.8, 0), Vector(39.1, 4.8, 0)),
    Part.LineSegment(Vector(39.1, 4.8, 0), Vector(37.4, 3.8, 0)),
    Part.LineSegment(Vector(37.4, 3.8, 0), Vector(39.1, 2.8, 0)),
    Part.LineSegment(Vector(53.1, 4.8, 0), Vector(53.1, 2.8, 0)),
    Part.LineSegment(Vector(53.1, 2.8, 0), Vector(54.9, 3.8, 0)),
    Part.LineSegment(Vector(54.9, 3.8, 0), Vector(53.1, 4.8, 0)),
    Part.LineSegment(Vector(57.6, 4.8, 0), Vector(55.9, 3.8, 0)),
    Part.LineSegment(Vector(55.9, 3.8, 0), Vector(57.6, 2.8, 0)),
    Part.LineSegment(Vector(57.6, 2.8, 0), Vector(57.6, 4.8, 0)),
    Part.LineSegment(Vector(71.7, 2.8, 0), Vector(73.4, 3.8, 0)),
    Part.LineSegment(Vector(73.4, 3.8, 0), Vector(71.7, 4.8, 0)),
    Part.LineSegment(Vector(71.7, 4.8, 0), Vector(71.7, 2.8, 0)),
], False)
sketch8.addConstraint([
    Sketcher.Constraint("Coincident", 0, 2, 1, 1),
    Sketcher.Constraint("Coincident", 1, 2, 2, 1),
    Sketcher.Constraint("Coincident", 2, 2, 0, 1),
    Sketcher.Constraint("Coincident", 3, 2, 4, 1),
    Sketcher.Constraint("Coincident", 4, 2, 5, 1),
    Sketcher.Constraint("Coincident", 5, 2, 3, 1),
    Sketcher.Constraint("Coincident", 6, 2, 7, 1),
    Sketcher.Constraint("Coincident", 7, 2, 8, 1),
    Sketcher.Constraint("Coincident", 8, 2, 6, 1),
    Sketcher.Constraint("Coincident", 9, 2, 10, 1),
    Sketcher.Constraint("Coincident", 10, 2, 11, 1),
    Sketcher.Constraint("Coincident", 11, 2, 9, 1),
    Sketcher.Constraint("Coincident", 12, 2, 13, 1),
    Sketcher.Constraint("Coincident", 13, 2, 14, 1),
    Sketcher.Constraint("Coincident", 14, 2, 12, 1),
    Sketcher.Constraint("Coincident", 15, 2, 16, 1),
    Sketcher.Constraint("Coincident", 16, 2, 17, 1),
    Sketcher.Constraint("Coincident", 17, 2, 15, 1),
    Sketcher.Constraint("Coincident", 18, 2, 19, 1),
    Sketcher.Constraint("Coincident", 19, 2, 20, 1),
    Sketcher.Constraint("Coincident", 20, 2, 18, 1),
    Sketcher.Constraint("Coincident", 21, 2, 22, 1),
    Sketcher.Constraint("Coincident", 22, 2, 23, 1),
    Sketcher.Constraint("Coincident", 23, 2, 21, 1),
    Sketcher.Constraint("Vertical", 1),
    Sketcher.Constraint("Vertical", 5),
    Sketcher.Constraint("Vertical", 7),
    Sketcher.Constraint("Vertical", 11),
    Sketcher.Constraint("Vertical", 12),
    Sketcher.Constraint("Vertical", 15),
    Sketcher.Constraint("Vertical", 20),
    Sketcher.Constraint("Vertical", 23),
    Sketcher.Constraint("Parallel", 2, 3),
    Sketcher.Constraint("Parallel", 0, 4),
    Sketcher.Constraint("Parallel", 4, 6),
    Sketcher.Constraint("Parallel", 3, 8),
    Sketcher.Constraint("Parallel", 8, 9),
    Sketcher.Constraint("Parallel", 6, 10),
    Sketcher.Constraint("Parallel", 9, 13),
    Sketcher.Constraint("Parallel", 10, 14),
    Sketcher.Constraint("Parallel", 13, 16),
    Sketcher.Constraint("Parallel", 14, 17),
    Sketcher.Constraint("Parallel", 16, 18),
    Sketcher.Constraint("Parallel", 17, 19),
    Sketcher.Constraint("Parallel", 18, 21),
    Sketcher.Constraint("Parallel", 19, 22),
    Sketcher.Constraint("Horizontal", 2, 2, 3, 2),
    Sketcher.Constraint("Horizontal", 1, 2, 4, 2),
    Sketcher.Constraint("Horizontal", 0, 2, 5, 2),
    Sketcher.Constraint("Horizontal", 5, 2, 6, 2),
    Sketcher.Constraint("Horizontal", 4, 2, 7, 2),
    Sketcher.Constraint("Horizontal", 8, 2, 9, 2),
    Sketcher.Constraint("Horizontal", 7, 2, 10, 2),
    Sketcher.Constraint("Horizontal", 10, 2, 12, 2),
    Sketcher.Constraint("Horizontal", 9, 2, 13, 2),
    Sketcher.Constraint("Horizontal", 14, 2, 15, 2),
    Sketcher.Constraint("Horizontal", 13, 2, 16, 2),
    Sketcher.Constraint("Horizontal", 16, 2, 18, 2),
    Sketcher.Constraint("Horizontal", 15, 2, 19, 2),
    Sketcher.Constraint("Horizontal", 18, 2, 21, 2),
    Sketcher.Constraint("Horizontal", 20, 2, 22, 2),
    Sketcher.Constraint("DistanceY", 1, 1, 1, 2, 2.0),
    Sketcher.Constraint("DistanceX", 1, 2, 4, 2, 14.0),
    Sketcher.Constraint("DistanceX", 3, 2, 8, 2, 1.0),
    Sketcher.Constraint("DistanceX", 7, 2, 10, 2, 14.0),
    Sketcher.Constraint("DistanceX", 9, 2, 13, 2, 1.0),
    Sketcher.Constraint("DistanceX", 14, 2, 15, 2, 14.0),
    Sketcher.Constraint("DistanceX", 16, 2, 18, 2, 1.0),
    Sketcher.Constraint("DistanceX", 20, 2, 22, 2, 14.0),
    Sketcher.Constraint("DistanceX", -1, 1, 2, 2, 0.4),
    Sketcher.Constraint("DistanceX", -1, 1, 3, 2, 17.9),
    Sketcher.Constraint("DistanceY", -1, 1, 0, 2, 2.75),
])
pocket3 = body.newObject("PartDesign::Pocket", "Pocket002")
pocket3.Profile = sketch8
pocket3.Length = 3.36

sketch9 = body.newObject("Sketcher::SketchObject", "Sketch008")
sketch9.AttachmentSupport = (doc.getObject("YZ_Plane"), [""])
sketch9.MapMode = "FlatFace"
sketch9.addGeometry([
    Part.LineSegment(Vector(-1.9, 4.8, 0), Vector(-1.9, 2.8, 0)),
    Part.LineSegment(Vector(-1.9, 2.8, 0), Vector(-0.1, 3.8, 0)),
    Part.LineSegment(Vector(-0.1, 3.8, 0), Vector(-1.9, 4.8, 0)),
], False)
sketch9.addConstraint([
    Sketcher.Constraint("Coincident", 0, 2, 1, 1),
    Sketcher.Constraint("Coincident", 1, 2, 2, 1),
    Sketcher.Constraint("Coincident", 2, 2, 0, 1),
    Sketcher.Constraint("Vertical", 0),
    Sketcher.Constraint("Equal", 1, 2),
    Sketcher.Constraint("DistanceY", 0, 2, 0, 1, 2.0),
    Sketcher.Constraint("DistanceX", 0, 2, -1, 1, 1.9),
    Sketcher.Constraint("DistanceY", -1, 1, 0, 2, 2.75),
    Sketcher.Constraint("DistanceX", 1, 2, -1, 1, 0.15),
])
pocket4 = body.newObject("PartDesign::Pocket", "Pocket003")
pocket4.Profile = sketch9
pocket4.Length = 75
pocket4.Reversed = True

sketch10 = body.newObject("Sketcher::SketchObject", "Sketch009")
sketch10.AttachmentSupport = (doc.getObject("XY_Plane"), [""])
sketch10.MapMode = "FlatFace"
sketch10.AttachmentOffset = App.Placement(Vector(0, 0, 6), App.Rotation())
sketch10.addGeometry([
    Part.LineSegment(Vector(-2.4, 0.2, 0), Vector(-2.4, -1.8, 0)),
    Part.LineSegment(Vector(-2.4, -1.8, 0), Vector(2.1, -1.8, 0)),
    Part.LineSegment(Vector(2.1, -1.8, 0), Vector(2.1, 0.2, 0)),
    Part.LineSegment(Vector(2.1, 0.2, 0), Vector(-2.4, 0.2, 0)),
    Part.LineSegment(Vector(16.1, 0.2, 0), Vector(16.1, -1.8, 0)),
    Part.LineSegment(Vector(16.1, -1.8, 0), Vector(20.6, -1.8, 0)),
    Part.LineSegment(Vector(20.6, -1.8, 0), Vector(20.6, 0.2, 0)),
    Part.LineSegment(Vector(20.6, 0.2, 0), Vector(16.1, 0.2, 0)),
    Part.LineSegment(Vector(34.6, 0.2, 0), Vector(34.6, -1.8, 0)),
    Part.LineSegment(Vector(34.6, -1.8, 0), Vector(39.1, -1.8, 0)),
    Part.LineSegment(Vector(39.1, -1.8, 0), Vector(39.1, 0.2, 0)),
    Part.LineSegment(Vector(39.1, 0.2, 0), Vector(34.6, 0.2, 0)),
    Part.LineSegment(Vector(53.1, 0.2, 0), Vector(53.1, -1.8, 0)),
    Part.LineSegment(Vector(53.1, -1.8, 0), Vector(57.6, -1.8, 0)),
    Part.LineSegment(Vector(57.6, -1.8, 0), Vector(57.6, 0.2, 0)),
    Part.LineSegment(Vector(57.6, 0.2, 0), Vector(53.1, 0.2, 0)),
    Part.LineSegment(Vector(71.7, 0.2, 0), Vector(71.7, -1.8, 0)),
    Part.LineSegment(Vector(71.7, -1.8, 0), Vector(76.2, -1.8, 0)),
    Part.LineSegment(Vector(76.2, -1.8, 0), Vector(76.2, 0.2, 0)),
    Part.LineSegment(Vector(76.2, 0.2, 0), Vector(71.7, 0.2, 0)),
], False)
sketch10.addConstraint([
    Sketcher.Constraint("Coincident", 0, 2, 1, 1),
    Sketcher.Constraint("Coincident", 1, 2, 2, 1),
    Sketcher.Constraint("Coincident", 2, 2, 3, 1),
    Sketcher.Constraint("Coincident", 3, 2, 0, 1),
    Sketcher.Constraint("Coincident", 4, 2, 5, 1),
    Sketcher.Constraint("Coincident", 5, 2, 6, 1),
    Sketcher.Constraint("Coincident", 6, 2, 7, 1),
    Sketcher.Constraint("Coincident", 7, 2, 4, 1),
    Sketcher.Constraint("Coincident", 8, 2, 9, 1),
    Sketcher.Constraint("Coincident", 9, 2, 10, 1),
    Sketcher.Constraint("Coincident", 10, 2, 11, 1),
    Sketcher.Constraint("Coincident", 11, 2, 8, 1),
    Sketcher.Constraint("Coincident", 12, 2, 13, 1),
    Sketcher.Constraint("Coincident", 13, 2, 14, 1),
    Sketcher.Constraint("Coincident", 14, 2, 15, 1),
    Sketcher.Constraint("Coincident", 15, 2, 12, 1),
    Sketcher.Constraint("Coincident", 16, 2, 17, 1),
    Sketcher.Constraint("Coincident", 17, 2, 18, 1),
    Sketcher.Constraint("Coincident", 18, 2, 19, 1),
    Sketcher.Constraint("Coincident", 19, 2, 16, 1),
    Sketcher.Constraint("Vertical", 0),
    Sketcher.Constraint("Horizontal", 1),
    Sketcher.Constraint("Vertical", 2),
    Sketcher.Constraint("Horizontal", 3),
    Sketcher.Constraint("Vertical", 4),
    Sketcher.Constraint("Horizontal", 5),
    Sketcher.Constraint("Vertical", 6),
    Sketcher.Constraint("Horizontal", 7),
    Sketcher.Constraint("Vertical", 8),
    Sketcher.Constraint("Horizontal", 9),
    Sketcher.Constraint("Vertical", 10),
    Sketcher.Constraint("Horizontal", 11),
    Sketcher.Constraint("Vertical", 12),
    Sketcher.Constraint("Horizontal", 13),
    Sketcher.Constraint("Vertical", 14),
    Sketcher.Constraint("Horizontal", 15),
    Sketcher.Constraint("Vertical", 16),
    Sketcher.Constraint("Horizontal", 17),
    Sketcher.Constraint("Vertical", 18),
    Sketcher.Constraint("Horizontal", 19),
    Sketcher.Constraint("Horizontal", 1, 2, 4, 2),
    Sketcher.Constraint("Horizontal", 3, 2, 6, 2),
    Sketcher.Constraint("Horizontal", 5, 2, 8, 2),
    Sketcher.Constraint("Horizontal", 7, 2, 10, 2),
    Sketcher.Constraint("Horizontal", 9, 2, 12, 2),
    Sketcher.Constraint("Horizontal", 11, 2, 14, 2),
    Sketcher.Constraint("Horizontal", 13, 2, 16, 2),
    Sketcher.Constraint("Horizontal", 15, 2, 18, 2),
    Sketcher.Constraint("Equal", 3, 5),
    Sketcher.Constraint("Equal", 7, 9),
    Sketcher.Constraint("Equal", 11, 13),
    Sketcher.Constraint("Equal", 15, 17),
    Sketcher.Constraint("DistanceY", 0, 2, 0, 1, 2.0),
    Sketcher.Constraint("DistanceX", 13, 2, 16, 2, 14.0),
    Sketcher.Constraint("DistanceX", 0, 2, 4, 2, 18.5),
    Sketcher.Constraint("DistanceX", 4, 2, 8, 2, 18.5),
    Sketcher.Constraint("DistanceX", 8, 2, 12, 2, 18.5),
    Sketcher.Constraint("DistanceX", 1, 1, 1, 2, 4.501),
    Sketcher.Constraint("DistanceX", -1, 1, 1, 2, 2.15),
    Sketcher.Constraint("DistanceY", 0, 2, -1, 1, 1.845),
])
pad6 = body.newObject("PartDesign::Pad", "Pad005")
pad6.Profile = sketch10
pad6.Length = 5
pad6.Reversed = True

sketch11 = body.newObject("Sketcher::SketchObject", "Sketch010")
sketch11.AttachmentSupport = (doc.getObject("YZ_Plane"), [""])
sketch11.MapMode = "FlatFace"
sketch11.addGeometry(Part.Circle(Vector(-11, -55, 0), Vector(0, 0, 1), 6), False)
sketch11.addConstraint([
    Sketcher.Constraint("Diameter", 0, 12.7),
    Sketcher.Constraint("DistanceY", 0, 3, -1, 1, 55.1),
    Sketcher.Constraint("DistanceX", 0, 3, -1, 1, 10.95),
])
pocket5 = body.newObject("PartDesign::Pocket", "Pocket004")
pocket5.Profile = sketch11
pocket5.Length = 2.5

doc.recompute()
